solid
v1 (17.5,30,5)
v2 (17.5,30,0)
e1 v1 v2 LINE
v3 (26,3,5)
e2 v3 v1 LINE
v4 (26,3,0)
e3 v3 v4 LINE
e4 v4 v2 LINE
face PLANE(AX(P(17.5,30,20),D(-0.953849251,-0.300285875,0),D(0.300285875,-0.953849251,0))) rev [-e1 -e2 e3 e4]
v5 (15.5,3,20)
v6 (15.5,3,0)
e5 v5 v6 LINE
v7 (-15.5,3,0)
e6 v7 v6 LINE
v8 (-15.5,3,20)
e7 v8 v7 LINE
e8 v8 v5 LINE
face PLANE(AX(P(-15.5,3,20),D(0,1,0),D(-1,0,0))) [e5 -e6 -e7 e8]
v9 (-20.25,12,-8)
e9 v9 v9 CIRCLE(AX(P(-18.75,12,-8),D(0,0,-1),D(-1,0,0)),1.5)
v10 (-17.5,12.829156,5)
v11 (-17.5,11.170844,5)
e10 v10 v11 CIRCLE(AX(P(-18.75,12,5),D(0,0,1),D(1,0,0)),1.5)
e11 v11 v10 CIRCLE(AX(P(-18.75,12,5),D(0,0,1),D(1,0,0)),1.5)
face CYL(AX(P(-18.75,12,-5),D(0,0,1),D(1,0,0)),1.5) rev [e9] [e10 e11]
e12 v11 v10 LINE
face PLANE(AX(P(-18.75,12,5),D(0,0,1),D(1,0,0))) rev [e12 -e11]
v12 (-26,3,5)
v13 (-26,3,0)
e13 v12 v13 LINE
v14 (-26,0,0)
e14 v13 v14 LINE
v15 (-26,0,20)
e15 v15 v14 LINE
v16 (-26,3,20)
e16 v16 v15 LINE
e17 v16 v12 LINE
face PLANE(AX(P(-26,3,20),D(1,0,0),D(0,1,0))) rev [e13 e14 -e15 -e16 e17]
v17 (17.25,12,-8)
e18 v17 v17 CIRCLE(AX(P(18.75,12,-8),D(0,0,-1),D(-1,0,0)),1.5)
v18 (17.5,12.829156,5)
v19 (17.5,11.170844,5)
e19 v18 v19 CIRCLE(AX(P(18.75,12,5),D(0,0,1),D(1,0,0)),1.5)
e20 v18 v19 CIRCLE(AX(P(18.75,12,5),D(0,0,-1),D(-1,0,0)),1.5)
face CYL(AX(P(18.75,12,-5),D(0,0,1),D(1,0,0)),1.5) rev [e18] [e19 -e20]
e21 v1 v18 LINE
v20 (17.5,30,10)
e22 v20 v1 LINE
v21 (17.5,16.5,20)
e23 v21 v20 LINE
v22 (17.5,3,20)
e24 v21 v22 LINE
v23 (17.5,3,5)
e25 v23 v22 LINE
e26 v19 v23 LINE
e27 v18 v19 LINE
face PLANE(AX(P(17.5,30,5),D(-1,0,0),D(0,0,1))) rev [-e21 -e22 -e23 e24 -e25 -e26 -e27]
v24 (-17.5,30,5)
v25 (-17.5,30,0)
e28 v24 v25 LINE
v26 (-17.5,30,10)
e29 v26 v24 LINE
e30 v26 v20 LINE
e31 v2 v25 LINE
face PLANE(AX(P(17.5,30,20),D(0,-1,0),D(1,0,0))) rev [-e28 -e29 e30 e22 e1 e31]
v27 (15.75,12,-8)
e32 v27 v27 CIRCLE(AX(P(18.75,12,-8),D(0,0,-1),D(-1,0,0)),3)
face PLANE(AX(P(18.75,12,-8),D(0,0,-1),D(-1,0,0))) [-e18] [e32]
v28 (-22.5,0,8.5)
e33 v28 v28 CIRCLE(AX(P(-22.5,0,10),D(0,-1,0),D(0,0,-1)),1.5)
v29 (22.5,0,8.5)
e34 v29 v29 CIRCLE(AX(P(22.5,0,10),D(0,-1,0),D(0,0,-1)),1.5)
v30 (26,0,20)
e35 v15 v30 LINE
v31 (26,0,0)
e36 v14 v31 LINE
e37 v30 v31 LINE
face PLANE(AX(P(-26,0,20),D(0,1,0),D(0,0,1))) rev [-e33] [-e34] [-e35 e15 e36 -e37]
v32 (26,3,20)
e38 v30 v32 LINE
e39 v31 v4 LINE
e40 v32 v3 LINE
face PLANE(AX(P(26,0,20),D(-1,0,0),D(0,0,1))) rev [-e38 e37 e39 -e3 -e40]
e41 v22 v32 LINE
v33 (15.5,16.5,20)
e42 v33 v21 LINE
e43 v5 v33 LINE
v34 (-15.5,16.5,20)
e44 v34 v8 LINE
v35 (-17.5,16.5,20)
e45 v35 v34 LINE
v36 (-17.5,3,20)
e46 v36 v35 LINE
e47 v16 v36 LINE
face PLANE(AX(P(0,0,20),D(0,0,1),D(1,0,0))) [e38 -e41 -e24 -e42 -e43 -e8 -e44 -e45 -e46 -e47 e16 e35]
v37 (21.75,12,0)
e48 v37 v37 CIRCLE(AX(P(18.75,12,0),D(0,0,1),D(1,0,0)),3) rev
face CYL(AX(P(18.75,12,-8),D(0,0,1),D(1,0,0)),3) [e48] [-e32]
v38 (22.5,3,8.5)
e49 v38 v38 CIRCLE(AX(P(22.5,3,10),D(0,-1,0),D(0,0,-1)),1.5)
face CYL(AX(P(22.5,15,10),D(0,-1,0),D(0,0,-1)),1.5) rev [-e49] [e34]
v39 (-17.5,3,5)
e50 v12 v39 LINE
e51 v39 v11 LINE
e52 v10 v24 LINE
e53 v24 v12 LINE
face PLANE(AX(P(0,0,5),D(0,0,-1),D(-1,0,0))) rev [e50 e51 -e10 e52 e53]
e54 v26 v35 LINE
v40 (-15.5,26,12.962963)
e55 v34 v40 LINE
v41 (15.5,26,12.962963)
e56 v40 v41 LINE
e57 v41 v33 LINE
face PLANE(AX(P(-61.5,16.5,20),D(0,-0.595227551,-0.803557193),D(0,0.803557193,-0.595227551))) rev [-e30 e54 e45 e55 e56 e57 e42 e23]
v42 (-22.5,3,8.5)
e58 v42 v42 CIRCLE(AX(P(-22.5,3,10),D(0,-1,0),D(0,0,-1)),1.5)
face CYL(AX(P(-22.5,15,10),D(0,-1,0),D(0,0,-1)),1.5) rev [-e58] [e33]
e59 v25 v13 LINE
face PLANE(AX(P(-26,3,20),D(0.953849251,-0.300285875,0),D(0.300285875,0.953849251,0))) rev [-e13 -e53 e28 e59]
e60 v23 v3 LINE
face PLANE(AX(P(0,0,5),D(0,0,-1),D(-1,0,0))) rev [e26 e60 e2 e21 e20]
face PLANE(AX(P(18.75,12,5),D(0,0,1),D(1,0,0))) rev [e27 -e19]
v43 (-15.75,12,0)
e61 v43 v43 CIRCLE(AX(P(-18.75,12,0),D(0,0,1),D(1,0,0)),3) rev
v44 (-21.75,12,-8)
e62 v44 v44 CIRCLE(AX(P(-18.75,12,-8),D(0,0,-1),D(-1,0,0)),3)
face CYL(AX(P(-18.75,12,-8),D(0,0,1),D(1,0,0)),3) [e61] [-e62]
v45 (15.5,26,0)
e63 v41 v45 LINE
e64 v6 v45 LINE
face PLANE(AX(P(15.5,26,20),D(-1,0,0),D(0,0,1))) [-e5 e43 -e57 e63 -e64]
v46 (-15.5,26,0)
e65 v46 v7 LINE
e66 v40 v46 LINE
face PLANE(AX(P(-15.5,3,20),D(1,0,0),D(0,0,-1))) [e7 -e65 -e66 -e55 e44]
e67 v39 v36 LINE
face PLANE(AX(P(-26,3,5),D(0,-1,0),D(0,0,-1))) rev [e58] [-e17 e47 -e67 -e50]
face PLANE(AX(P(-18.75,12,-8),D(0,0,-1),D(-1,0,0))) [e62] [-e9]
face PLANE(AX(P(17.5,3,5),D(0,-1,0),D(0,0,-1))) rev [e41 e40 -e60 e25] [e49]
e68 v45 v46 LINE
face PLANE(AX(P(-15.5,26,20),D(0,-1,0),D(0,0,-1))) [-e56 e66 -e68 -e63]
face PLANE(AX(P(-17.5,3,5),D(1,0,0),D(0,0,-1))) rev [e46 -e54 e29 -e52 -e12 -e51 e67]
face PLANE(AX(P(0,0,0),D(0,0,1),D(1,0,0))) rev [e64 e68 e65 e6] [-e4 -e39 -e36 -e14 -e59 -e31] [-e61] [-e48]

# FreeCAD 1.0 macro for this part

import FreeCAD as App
import Part
import Sketcher
from FreeCAD import Vector


def add_polygon(sketch, points):
    """Adds a closed chain of lines whose ends are joined by coincident constraints."""
    first, n = sketch.GeometryCount, len(points)
    for a, b in zip(points, points[1:] + points[:1]):
        sketch.addGeometry(Part.LineSegment(App.Vector(*a, 0), App.Vector(*b, 0)), False)
    for i in range(n):
        sketch.addConstraint(Sketcher.Constraint("Coincident", first + i, 2, first + (i + 1) % n, 1))

doc = App.newDocument("Part")
body = doc.addObject("PartDesign::Body", "Body")

# Sketch on XY plane
sketch1 = doc.addObject("Sketcher::SketchObject", "Sketch")
body.addObject(sketch1)
sketch1.AttachmentSupport = (doc.XY_Plane, [""])
sketch1.MapMode = "FlatFace"
add_polygon(sketch1, [(-26, 0), (26, 0), (26, 3), (17.5, 30), (-17.5, 30), (-26, 3)])  # lines 0-5
add_polygon(sketch1, [(15.5, 3), (-15.5, 3), (-15.5, 26), (15.5, 26)])  # lines 6-9
sketch1.addConstraint([
    Sketcher.Constraint("Horizontal", 0),
    Sketcher.Constraint("Vertical", 1),
    Sketcher.Constraint("Horizontal", 3),
    Sketcher.Constraint("Vertical", 5),
    Sketcher.Constraint("Horizontal", 6),
    Sketcher.Constraint("Vertical", 7),
    Sketcher.Constraint("Horizontal", 8),
    Sketcher.Constraint("Vertical", 9),
    Sketcher.Constraint("Symmetric", 0, 2, 5, 2, -1, 1),
    Sketcher.Constraint("Horizontal", 1, 2, 4, 2),
    Sketcher.Constraint("Horizontal", 4, 2, 6, 2),
    Sketcher.Constraint("Equal", 2, 4),
    Sketcher.Constraint("DistanceX", 0, 1, 0, 2, 52.0),
    Sketcher.Constraint("DistanceX", 3, 2, 3, 1, 35.0),
    Sketcher.Constraint("DistanceX", 6, 2, 6, 1, 31.0),
    Sketcher.Constraint("DistanceY", 1, 1, 1, 2, 3.0),
    Sketcher.Constraint("DistanceY", 7, 1, 7, 2, 23.0),
    Sketcher.Constraint("DistanceY", -1, 1, 2, 2, 30.0),
    Sketcher.Constraint("DistanceX", 3, 2, 6, 2, 2.0),
])
pad1 = doc.addObject("PartDesign::Pad", "Pad")
body.addObject(pad1)
pad1.Profile = sketch1
pad1.Length = 20

# Sketch on YZ plane
sketch2 = doc.addObject("Sketcher::SketchObject", "Sketch001")
body.addObject(sketch2)
sketch2.AttachmentSupport = (doc.YZ_Plane, [""])
sketch2.MapMode = "FlatFace"
sketch2.AttachmentOffset = App.Placement(Vector(0, 0, -15.5), App.Rotation())
add_polygon(sketch2, [(16, 20), (30, 10), (30, 20)])  # lines 0-2
sketch2.addConstraint([
    Sketcher.Constraint("Vertical", 1),
    Sketcher.Constraint("Horizontal", 2),
    Sketcher.Constraint("DistanceY", 1, 1, 1, 2, 10.0),
    Sketcher.Constraint("DistanceX", 2, 2, 2, 1, 13.5),
    Sketcher.Constraint("DistanceX", -1, 1, 0, 2, 30.0),
    Sketcher.Constraint("DistanceY", -1, 1, 0, 2, 10.0),
])
pocket1 = doc.addObject("PartDesign::Pocket", "Pocket")
body.addObject(pocket1)
pocket1.Profile = sketch2
pocket1.Length = 92
pocket1.Midplane = True

# Sketch on XY plane
sketch3 = doc.addObject("Sketcher::SketchObject", "Sketch002")
body.addObject(sketch3)
sketch3.AttachmentSupport = (doc.XY_Plane, [""])
sketch3.MapMode = "FlatFace"
sketch3.AttachmentOffset = App.Placement(Vector(0, 0, 20), App.Rotation())
add_polygon(sketch3, [(18, 30), (18, 3), (26, 3)])  # lines 0-2
add_polygon(sketch3, [(-18, 30), (-26, 3), (-18, 3)])  # lines 3-5
sketch3.addConstraint([
    Sketcher.Constraint("Vertical", 0),
    Sketcher.Constraint("Horizontal", 1),
    Sketcher.Constraint("Horizontal", 4),
    Sketcher.Constraint("Vertical", 5),
    Sketcher.Constraint("Symmetric", 1, 2, 3, 2, -2),
    Sketcher.Constraint("Symmetric", 2, 2, 5, 2, -2),
    Sketcher.Constraint("DistanceY", 0, 2, 0, 1, 27.0),
    Sketcher.Constraint("DistanceX", 1, 1, 1, 2, 8.5),
    Sketcher.Constraint("DistanceY", -1, 1, 0, 2, 3.0),
    Sketcher.Constraint("DistanceX", -1, 1, 1, 2, 26.0),
])
pocket2 = doc.addObject("PartDesign::Pocket", "Pocket001")
body.addObject(pocket2)
pocket2.Profile = sketch3
pocket2.Length = 15

# Sketch on XZ plane
sketch4 = doc.addObject("Sketcher::SketchObject", "Sketch003")
body.addObject(sketch4)
sketch4.AttachmentSupport = (doc.XZ_Plane, [""])
sketch4.MapMode = "FlatFace"
sketch4.addGeometry([
    Part.Circle(Vector(-22.5, 10, 0), Vector(0, 0, 1), 1.5),
    Part.Circle(Vector(22.5, 10, 0), Vector(0, 0, 1), 1.5),
], False)
sketch4.addConstraint([
    Sketcher.Constraint("Equal", 0, 1),
    Sketcher.Constraint("Symmetric", 0, 3, 1, 3, -2),
    Sketcher.Constraint("Diameter", 0, 3.0),
    Sketcher.Constraint("DistanceY", -1, 1, 0, 3, 10.0),
    Sketcher.Constraint("DistanceX", 0, 3, 1, 3, 45.0),
])
pocket3 = doc.addObject("PartDesign::Pocket", "Pocket002")
body.addObject(pocket3)
pocket3.Profile = sketch4
pocket3.Length = 15

# Sketch on XY plane
sketch5 = doc.addObject("Sketcher::SketchObject", "Sketch004")
body.addObject(sketch5)
sketch5.AttachmentSupport = (doc.XY_Plane, [""])
sketch5.MapMode = "FlatFace"
sketch5.AttachmentOffset = App.Placement(Vector(0, 0, 5), App.Rotation())
sketch5.addGeometry([
    Part.Circle(Vector(-18.8, 12, 0), Vector(0, 0, 1), 1.5),
    Part.Circle(Vector(18.8, 12, 0), Vector(0, 0, 1), 1.5),
], False)
sketch5.addConstraint([
    Sketcher.Constraint("Equal", 0, 1),
    Sketcher.Constraint("Symmetric", 0, 3, 1, 3, -2),
    Sketcher.Constraint("Diameter", 0, 3.0),
    Sketcher.Constraint("DistanceY", -1, 1, 0, 3, 12.0),
    Sketcher.Constraint("DistanceX", 0, 3, 1, 3, 37.5),
])
pocket4 = doc.addObject("PartDesign::Pocket", "Pocket003")
body.addObject(pocket4)
pocket4.Profile = sketch5
pocket4.Length = 10

# Sketch on XY plane
sketch6 = doc.addObject("Sketcher::SketchObject", "Sketch005")
body.addObject(sketch6)
sketch6.AttachmentSupport = (doc.XY_Plane, [""])
sketch6.MapMode = "FlatFace"
sketch6.addGeometry([
    Part.Circle(Vector(-18.8, 12, 0), Vector(0, 0, 1), 3),
    Part.Circle(Vector(-18.8, 12, 0), Vector(0, 0, 1), 1.5),
    Part.Circle(Vector(18.8, 12, 0), Vector(0, 0, 1), 3),
    Part.Circle(Vector(18.8, 12, 0), Vector(0, 0, 1), 1.5),
], False)
sketch6.addConstraint([
    Sketcher.Constraint("Coincident", 1, 3, 0, 3),
    Sketcher.Constraint("Coincident", 3, 3, 2, 3),
    Sketcher.Constraint("Equal", 0, 2),
    Sketcher.Constraint("Equal", 1, 3),
    Sketcher.Constraint("Symmetric", 0, 3, 2, 3, -2),
    Sketcher.Constraint("Diameter", 0, 6.0),
    Sketcher.Constraint("Diameter", 1, 3.0),
    Sketcher.Constraint("DistanceY", -1, 1, 0, 3, 12.0),
    Sketcher.Constraint("DistanceX", 0, 3, 2, 3, 37.5),
])
pad2 = doc.addObject("PartDesign::Pad", "Pad001")
body.addObject(pad2)
pad2.Profile = sketch6
pad2.Length = 8
pad2.Reversed = True

doc.recompute()
